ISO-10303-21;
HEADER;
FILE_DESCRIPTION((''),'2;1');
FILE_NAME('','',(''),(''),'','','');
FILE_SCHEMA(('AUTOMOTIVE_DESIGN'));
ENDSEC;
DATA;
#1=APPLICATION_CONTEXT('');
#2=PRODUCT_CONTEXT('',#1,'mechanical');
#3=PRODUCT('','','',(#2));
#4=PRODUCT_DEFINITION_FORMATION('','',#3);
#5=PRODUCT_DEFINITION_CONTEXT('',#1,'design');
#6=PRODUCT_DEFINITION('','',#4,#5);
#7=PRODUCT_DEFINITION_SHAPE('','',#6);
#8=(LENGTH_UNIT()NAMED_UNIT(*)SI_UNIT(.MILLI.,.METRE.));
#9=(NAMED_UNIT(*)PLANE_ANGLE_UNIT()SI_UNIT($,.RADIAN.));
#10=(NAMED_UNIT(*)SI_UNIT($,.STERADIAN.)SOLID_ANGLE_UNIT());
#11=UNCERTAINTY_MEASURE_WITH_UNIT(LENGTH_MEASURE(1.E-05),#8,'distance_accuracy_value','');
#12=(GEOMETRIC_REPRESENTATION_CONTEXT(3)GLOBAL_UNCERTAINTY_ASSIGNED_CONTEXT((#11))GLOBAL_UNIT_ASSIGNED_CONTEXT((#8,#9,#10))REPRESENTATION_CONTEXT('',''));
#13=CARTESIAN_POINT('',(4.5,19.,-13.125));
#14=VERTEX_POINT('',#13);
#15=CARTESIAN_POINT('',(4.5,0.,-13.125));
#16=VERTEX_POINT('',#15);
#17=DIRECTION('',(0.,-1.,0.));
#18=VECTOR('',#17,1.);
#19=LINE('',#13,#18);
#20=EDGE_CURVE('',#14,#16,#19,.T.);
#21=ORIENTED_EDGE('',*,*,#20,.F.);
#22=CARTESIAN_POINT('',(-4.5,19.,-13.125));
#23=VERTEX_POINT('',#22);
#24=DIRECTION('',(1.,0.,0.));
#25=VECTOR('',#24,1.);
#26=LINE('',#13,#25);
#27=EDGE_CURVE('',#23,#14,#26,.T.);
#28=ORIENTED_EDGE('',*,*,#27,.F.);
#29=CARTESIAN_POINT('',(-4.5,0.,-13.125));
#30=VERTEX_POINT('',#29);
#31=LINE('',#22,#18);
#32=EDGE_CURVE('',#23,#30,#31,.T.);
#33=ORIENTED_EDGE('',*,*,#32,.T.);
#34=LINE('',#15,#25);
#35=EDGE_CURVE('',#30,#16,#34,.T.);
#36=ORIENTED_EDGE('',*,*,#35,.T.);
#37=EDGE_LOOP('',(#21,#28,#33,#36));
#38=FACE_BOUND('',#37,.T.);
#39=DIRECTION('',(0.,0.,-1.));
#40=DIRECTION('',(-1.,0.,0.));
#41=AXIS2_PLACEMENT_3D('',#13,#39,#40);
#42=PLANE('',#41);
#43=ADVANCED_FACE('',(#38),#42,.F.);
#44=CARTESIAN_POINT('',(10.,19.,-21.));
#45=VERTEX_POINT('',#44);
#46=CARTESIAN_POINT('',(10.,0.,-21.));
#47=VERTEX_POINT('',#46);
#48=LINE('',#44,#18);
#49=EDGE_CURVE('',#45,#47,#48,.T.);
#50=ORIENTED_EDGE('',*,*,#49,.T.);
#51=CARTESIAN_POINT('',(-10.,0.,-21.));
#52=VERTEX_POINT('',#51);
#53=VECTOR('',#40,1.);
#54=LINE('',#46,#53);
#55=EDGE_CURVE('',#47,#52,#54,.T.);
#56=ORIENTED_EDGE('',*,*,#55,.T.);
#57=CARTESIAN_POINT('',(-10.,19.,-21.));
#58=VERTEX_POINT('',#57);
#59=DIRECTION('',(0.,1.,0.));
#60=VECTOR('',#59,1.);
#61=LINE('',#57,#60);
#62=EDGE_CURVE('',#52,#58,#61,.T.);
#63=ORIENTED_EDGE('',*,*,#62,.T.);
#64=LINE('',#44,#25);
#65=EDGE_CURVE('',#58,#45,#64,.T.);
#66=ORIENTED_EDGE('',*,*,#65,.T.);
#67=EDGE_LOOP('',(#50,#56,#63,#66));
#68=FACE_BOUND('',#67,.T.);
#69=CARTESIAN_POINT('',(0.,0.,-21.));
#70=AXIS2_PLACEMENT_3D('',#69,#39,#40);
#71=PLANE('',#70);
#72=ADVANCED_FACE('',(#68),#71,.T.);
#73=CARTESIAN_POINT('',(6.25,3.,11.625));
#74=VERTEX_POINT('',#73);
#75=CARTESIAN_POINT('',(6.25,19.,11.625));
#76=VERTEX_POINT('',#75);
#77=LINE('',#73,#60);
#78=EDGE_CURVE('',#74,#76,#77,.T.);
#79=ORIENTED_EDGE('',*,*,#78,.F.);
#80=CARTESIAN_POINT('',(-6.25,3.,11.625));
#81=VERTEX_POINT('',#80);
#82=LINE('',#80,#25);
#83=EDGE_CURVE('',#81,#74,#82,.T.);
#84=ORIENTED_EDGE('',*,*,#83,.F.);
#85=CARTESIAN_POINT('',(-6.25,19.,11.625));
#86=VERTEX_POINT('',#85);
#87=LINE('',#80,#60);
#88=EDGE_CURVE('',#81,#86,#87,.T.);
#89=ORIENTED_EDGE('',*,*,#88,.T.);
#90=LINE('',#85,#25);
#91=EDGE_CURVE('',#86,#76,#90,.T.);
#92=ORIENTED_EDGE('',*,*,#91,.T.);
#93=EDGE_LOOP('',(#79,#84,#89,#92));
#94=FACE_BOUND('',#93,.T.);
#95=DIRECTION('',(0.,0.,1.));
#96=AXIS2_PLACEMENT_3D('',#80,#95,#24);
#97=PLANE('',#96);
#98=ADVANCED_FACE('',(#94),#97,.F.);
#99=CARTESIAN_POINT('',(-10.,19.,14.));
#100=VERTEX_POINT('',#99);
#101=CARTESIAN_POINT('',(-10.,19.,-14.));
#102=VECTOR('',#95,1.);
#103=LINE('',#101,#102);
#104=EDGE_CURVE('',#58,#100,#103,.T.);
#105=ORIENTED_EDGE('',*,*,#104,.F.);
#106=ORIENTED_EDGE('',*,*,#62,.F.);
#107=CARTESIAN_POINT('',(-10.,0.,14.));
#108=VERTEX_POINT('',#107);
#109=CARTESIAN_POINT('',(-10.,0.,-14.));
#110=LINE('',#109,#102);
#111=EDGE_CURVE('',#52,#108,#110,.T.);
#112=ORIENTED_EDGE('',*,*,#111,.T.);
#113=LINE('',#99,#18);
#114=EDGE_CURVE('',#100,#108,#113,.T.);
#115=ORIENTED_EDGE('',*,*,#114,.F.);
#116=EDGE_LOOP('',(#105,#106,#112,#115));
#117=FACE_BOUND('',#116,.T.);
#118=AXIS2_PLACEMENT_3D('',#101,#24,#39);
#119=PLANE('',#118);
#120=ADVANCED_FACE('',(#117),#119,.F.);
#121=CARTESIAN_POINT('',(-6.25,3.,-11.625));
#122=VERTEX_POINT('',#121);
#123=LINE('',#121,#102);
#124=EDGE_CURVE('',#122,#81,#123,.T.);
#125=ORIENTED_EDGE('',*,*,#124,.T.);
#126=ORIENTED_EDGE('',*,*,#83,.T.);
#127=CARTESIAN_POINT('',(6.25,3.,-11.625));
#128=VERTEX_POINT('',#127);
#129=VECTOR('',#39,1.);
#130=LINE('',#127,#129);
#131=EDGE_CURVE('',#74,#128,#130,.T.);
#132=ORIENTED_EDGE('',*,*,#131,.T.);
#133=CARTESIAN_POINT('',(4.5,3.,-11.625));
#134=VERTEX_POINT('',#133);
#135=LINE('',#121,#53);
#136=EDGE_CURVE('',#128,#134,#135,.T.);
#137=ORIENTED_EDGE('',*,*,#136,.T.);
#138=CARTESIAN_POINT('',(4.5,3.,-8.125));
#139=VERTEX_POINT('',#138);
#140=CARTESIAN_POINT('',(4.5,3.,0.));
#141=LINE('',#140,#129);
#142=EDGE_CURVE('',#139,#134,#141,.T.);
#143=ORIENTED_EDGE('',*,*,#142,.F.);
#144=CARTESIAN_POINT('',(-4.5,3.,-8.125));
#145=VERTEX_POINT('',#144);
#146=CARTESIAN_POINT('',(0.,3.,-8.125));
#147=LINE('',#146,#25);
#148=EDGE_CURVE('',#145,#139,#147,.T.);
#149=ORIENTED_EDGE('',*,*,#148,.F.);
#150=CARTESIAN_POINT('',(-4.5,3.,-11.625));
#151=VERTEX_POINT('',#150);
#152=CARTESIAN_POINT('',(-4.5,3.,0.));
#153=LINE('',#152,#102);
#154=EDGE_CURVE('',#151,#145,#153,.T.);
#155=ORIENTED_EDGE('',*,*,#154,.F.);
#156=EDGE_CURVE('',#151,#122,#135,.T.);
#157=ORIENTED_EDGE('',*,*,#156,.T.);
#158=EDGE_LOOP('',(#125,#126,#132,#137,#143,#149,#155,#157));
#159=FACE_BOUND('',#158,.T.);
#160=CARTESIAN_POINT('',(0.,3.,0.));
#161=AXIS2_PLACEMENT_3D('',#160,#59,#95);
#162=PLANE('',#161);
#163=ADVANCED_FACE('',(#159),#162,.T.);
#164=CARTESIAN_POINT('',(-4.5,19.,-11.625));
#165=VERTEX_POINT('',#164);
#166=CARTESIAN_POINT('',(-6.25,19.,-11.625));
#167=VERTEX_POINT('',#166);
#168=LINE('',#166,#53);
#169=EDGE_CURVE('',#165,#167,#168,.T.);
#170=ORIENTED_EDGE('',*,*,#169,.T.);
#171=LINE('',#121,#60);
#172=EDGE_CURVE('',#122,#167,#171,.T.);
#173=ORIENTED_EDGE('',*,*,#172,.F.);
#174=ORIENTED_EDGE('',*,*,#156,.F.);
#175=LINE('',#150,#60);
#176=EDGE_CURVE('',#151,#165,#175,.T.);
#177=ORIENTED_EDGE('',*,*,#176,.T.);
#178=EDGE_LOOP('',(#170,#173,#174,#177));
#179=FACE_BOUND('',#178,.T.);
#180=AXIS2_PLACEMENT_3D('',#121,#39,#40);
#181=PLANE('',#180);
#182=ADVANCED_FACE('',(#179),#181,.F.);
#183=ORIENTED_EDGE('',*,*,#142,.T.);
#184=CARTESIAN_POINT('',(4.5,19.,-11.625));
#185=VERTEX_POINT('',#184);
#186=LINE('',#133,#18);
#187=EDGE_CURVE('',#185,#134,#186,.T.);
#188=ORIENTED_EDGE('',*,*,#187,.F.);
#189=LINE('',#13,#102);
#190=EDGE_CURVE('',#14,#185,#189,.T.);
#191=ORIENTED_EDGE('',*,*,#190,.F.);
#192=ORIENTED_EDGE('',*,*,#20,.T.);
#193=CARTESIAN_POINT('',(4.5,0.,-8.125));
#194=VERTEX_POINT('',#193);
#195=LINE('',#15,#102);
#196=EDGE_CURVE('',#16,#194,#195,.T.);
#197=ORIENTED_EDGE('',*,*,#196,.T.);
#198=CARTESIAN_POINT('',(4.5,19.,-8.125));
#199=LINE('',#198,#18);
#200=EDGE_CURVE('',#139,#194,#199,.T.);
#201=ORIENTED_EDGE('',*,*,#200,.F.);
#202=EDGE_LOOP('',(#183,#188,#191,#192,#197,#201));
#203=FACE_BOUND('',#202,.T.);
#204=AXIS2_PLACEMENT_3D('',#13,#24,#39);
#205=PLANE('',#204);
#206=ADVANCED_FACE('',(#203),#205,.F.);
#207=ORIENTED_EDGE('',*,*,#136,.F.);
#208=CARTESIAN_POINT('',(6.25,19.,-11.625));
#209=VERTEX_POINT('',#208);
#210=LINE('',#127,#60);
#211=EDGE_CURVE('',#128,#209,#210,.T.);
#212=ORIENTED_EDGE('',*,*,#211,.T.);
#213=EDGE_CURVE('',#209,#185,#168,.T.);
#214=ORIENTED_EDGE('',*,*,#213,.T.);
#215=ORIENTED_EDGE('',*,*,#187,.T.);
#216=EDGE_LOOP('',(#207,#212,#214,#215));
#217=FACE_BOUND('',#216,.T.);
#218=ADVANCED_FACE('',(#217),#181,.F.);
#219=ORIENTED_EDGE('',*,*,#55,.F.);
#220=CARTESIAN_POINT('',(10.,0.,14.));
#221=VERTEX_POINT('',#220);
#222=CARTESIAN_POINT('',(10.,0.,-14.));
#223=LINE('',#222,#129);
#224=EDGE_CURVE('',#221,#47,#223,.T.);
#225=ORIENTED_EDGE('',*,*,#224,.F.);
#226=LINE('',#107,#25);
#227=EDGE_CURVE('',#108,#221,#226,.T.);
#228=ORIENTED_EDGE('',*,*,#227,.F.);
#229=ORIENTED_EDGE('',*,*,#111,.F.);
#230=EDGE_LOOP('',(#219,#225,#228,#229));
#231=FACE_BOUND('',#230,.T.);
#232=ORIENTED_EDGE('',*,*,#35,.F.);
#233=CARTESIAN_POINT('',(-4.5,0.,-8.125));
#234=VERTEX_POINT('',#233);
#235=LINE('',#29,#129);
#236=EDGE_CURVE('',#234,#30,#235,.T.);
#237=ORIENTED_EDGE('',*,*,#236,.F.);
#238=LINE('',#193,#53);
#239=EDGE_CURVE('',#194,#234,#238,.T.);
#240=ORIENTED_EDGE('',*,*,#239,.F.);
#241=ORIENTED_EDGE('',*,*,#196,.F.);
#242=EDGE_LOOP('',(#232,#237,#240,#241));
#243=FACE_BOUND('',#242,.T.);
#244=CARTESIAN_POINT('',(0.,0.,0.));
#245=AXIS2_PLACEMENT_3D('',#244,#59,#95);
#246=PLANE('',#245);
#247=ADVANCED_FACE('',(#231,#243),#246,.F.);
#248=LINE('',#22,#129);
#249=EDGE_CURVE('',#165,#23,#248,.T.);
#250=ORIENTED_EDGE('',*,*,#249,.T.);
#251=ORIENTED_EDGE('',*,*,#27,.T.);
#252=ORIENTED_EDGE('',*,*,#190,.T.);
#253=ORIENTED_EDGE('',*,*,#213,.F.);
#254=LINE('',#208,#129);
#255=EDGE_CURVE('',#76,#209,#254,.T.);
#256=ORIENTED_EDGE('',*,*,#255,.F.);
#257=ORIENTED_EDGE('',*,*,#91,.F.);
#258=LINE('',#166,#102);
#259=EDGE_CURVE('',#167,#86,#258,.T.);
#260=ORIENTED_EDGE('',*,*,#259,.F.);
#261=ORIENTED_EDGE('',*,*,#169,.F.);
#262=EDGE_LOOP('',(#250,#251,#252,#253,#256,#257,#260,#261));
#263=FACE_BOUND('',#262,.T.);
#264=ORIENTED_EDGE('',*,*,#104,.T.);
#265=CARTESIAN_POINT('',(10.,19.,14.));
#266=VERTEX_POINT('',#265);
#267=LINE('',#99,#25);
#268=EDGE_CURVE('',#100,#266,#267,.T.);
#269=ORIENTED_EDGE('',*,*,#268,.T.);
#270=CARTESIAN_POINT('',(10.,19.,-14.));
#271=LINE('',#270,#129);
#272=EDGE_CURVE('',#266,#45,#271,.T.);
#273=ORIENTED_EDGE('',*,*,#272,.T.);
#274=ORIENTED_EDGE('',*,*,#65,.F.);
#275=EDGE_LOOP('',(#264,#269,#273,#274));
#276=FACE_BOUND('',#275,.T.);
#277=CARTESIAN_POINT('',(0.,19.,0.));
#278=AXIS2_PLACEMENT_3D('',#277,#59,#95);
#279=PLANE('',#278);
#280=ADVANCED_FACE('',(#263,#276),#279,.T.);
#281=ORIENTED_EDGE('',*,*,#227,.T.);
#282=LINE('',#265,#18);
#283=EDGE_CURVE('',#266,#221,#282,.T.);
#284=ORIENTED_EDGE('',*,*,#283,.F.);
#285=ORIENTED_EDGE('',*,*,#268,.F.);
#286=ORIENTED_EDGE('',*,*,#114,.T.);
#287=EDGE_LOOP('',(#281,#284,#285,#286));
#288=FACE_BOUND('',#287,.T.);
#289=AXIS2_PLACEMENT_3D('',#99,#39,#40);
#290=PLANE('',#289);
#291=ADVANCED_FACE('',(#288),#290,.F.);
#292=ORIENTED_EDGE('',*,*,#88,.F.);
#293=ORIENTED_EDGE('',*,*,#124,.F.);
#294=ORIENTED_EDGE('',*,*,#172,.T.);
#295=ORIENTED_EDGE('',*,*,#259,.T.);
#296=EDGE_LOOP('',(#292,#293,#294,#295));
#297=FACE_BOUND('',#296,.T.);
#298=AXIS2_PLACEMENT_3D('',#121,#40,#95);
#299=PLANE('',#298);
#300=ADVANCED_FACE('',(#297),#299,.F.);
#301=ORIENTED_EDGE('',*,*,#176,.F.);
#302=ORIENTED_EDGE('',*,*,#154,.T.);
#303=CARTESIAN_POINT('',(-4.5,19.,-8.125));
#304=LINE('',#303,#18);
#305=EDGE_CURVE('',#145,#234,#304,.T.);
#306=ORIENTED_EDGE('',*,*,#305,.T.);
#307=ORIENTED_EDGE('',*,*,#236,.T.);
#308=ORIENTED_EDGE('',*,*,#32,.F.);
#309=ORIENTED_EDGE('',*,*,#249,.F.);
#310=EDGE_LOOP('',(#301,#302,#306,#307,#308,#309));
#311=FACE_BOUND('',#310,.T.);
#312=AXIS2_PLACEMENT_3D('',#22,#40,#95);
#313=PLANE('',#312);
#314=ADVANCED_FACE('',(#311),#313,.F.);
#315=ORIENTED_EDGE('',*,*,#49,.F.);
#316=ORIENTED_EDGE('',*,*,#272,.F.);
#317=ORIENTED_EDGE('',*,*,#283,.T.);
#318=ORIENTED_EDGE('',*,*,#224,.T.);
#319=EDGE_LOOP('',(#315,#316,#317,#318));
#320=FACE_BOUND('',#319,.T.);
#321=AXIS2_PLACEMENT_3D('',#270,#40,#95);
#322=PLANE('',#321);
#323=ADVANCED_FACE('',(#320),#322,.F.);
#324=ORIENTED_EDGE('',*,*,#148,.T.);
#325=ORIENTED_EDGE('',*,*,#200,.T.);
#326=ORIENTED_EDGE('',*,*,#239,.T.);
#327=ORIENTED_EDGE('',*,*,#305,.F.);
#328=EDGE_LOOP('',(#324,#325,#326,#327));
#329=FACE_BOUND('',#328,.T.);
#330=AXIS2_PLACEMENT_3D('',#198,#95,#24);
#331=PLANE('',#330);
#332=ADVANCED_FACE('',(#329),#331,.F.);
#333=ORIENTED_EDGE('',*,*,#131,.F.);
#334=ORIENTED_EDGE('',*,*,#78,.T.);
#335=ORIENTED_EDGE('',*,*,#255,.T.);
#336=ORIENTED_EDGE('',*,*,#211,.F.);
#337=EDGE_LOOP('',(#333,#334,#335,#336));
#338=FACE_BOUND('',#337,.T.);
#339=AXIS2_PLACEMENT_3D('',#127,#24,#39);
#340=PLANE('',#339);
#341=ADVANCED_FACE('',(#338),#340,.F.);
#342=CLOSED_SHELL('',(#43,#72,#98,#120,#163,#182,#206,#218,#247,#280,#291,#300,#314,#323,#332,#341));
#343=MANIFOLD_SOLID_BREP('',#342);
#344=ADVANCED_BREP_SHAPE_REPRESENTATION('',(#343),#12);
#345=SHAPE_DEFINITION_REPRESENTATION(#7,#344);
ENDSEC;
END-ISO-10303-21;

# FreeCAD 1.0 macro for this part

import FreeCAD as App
import Part
import Sketcher
Q = App.Units.Quantity


def add_polygon(sketch, points):
    """Adds a closed chain of lines whose ends are joined by coincident constraints."""
    first, n = sketch.GeometryCount, len(points)
    for a, b in zip(points, points[1:] + points[:1]):
        sketch.addGeometry(Part.LineSegment(App.Vector(*a, 0), App.Vector(*b, 0)), False)
    for i in range(n):
        sketch.addConstraint(Sketcher.Constraint("Coincident", first + i, 2, first + (i + 1) % n, 1))

doc = App.newDocument("Part")
params = doc.addObject("Spreadsheet::Sheet", "Params")
for row, (alias, value) in enumerate([
    ("sketch1_width", "20 mm"),
    ("sketch1_height", "28 mm"),
    ("pad1_length", "19 mm"),
    ("sketch2_width", "12.5 mm"),
    ("sketch2_height", "23.25 mm"),
    ("pocket1_length", "16 mm"),
    ("sketch3_width", "20 mm"),
    ("sketch3_height", "19 mm"),
    ("pad2_length", "7 mm"),
    ("sketch4_width", "9 mm"),
    ("sketch4_height", "5 mm"),
], start=1):
    params.set(f"A{row}", alias)
    params.set(f"B{row}", "=" + value)
    params.setAlias(f"B{row}", alias)

body = doc.addObject("PartDesign::Body", "Body")

# Sketch on XZ plane
sketch1 = body.newObject("Sketcher::SketchObject", "Sketch")
sketch1.AttachmentSupport = (doc.getObject("XZ_Plane"), [""])
sketch1.MapMode = "FlatFace"
add_polygon(sketch1, [(-10, -14), (-10, 14), (10, 14), (10, -14)])  # lines 0-3
sketch1.addConstraint([
    Sketcher.Constraint("Vertical", 0),
    Sketcher.Constraint("Horizontal", 1),
    Sketcher.Constraint("Vertical", 2),
    Sketcher.Constraint("Horizontal", 3),
    Sketcher.Constraint("Symmetric", 0, 2, 2, 2, -1, 1),
    Sketcher.Constraint("DistanceX", 1, 1, 1, 2, Q("20 mm")),
    Sketcher.Constraint("DistanceY", 0, 1, 0, 2, Q("28 mm")),
])
sketch1.setExpression("Constraints[9]", "Params.sketch1_width")
sketch1.setExpression("Constraints[10]", "Params.sketch1_height")
pad1 = body.newObject("PartDesign::Pad", "Pad")
pad1.Profile = sketch1
pad1.setExpression("Length", "Params.pad1_length")
pad1.Reversed = True

# Sketch on XZ plane
sketch2 = body.newObject("Sketcher::SketchObject", "Sketch001")
sketch2.AttachmentSupport = (doc.getObject("XZ_Plane"), [""])
sketch2.MapMode = "FlatFace"
sketch2.AttachmentOffset = App.Placement(App.Vector(0, 0, -19), App.Rotation())
add_polygon(sketch2, [(-6, -12), (-6, 12), (6, 12), (6, -12)])  # lines 0-3
sketch2.addConstraint([
    Sketcher.Constraint("Vertical", 0),
    Sketcher.Constraint("Horizontal", 1),
    Sketcher.Constraint("Vertical", 2),
    Sketcher.Constraint("Horizontal", 3),
    Sketcher.Constraint("Symmetric", 0, 2, 2, 2, -1, 1),
    Sketcher.Constraint("DistanceX", 1, 1, 1, 2, Q("12.5 mm")),
    Sketcher.Constraint("DistanceY", 0, 1, 0, 2, Q("23.25 mm")),
])
sketch2.setExpression("Constraints[9]", "Params.sketch2_width")
sketch2.setExpression("Constraints[10]", "Params.sketch2_height")
pocket1 = body.newObject("PartDesign::Pocket", "Pocket")
pocket1.Profile = sketch2
pocket1.setExpression("Length", "Params.pocket1_length")
pocket1.Reversed = True

# Sketch on XY plane
sketch3 = body.newObject("Sketcher::SketchObject", "Sketch002")
sketch3.AttachmentSupport = (doc.getObject("XY_Plane"), [""])
sketch3.MapMode = "FlatFace"
sketch3.AttachmentOffset = App.Placement(App.Vector(0, 0, -14), App.Rotation())
add_polygon(sketch3, [(10, 19), (10, 0), (-10, 0), (-10, 19)])  # lines 0-3
sketch3.addConstraint([
    Sketcher.Constraint("Vertical", 0),
    Sketcher.Constraint("Horizontal", 1),
    Sketcher.Constraint("Vertical", 2),
    Sketcher.Constraint("Horizontal", 3),
    Sketcher.Constraint("Symmetric", 0, 2, 1, 2, -1, 1),
    Sketcher.Constraint("DistanceX", 1, 2, 1, 1, Q("20 mm")),
    Sketcher.Constraint("DistanceY", 0, 2, 0, 1, Q("19 mm")),
])
sketch3.setExpression("Constraints[9]", "Params.sketch3_width")
sketch3.setExpression("Constraints[10]", "Params.sketch3_height")
pad2 = body.newObject("PartDesign::Pad", "Pad001")
pad2.Profile = sketch3
pad2.setExpression("Length", "Params.pad2_length")
pad2.Reversed = True

# Sketch on XZ plane
sketch4 = body.newObject("Sketcher::SketchObject", "Sketch003")
sketch4.AttachmentSupport = (doc.getObject("XZ_Plane"), [""])
sketch4.MapMode = "FlatFace"
add_polygon(sketch4, [(-4, -8), (-4, -13), (4, -13), (4, -8)])  # lines 0-3
sketch4.addConstraint([
    Sketcher.Constraint("Vertical", 0),
    Sketcher.Constraint("Horizontal", 1),
    Sketcher.Constraint("Vertical", 2),
    Sketcher.Constraint("Horizontal", 3),
    Sketcher.Constraint("DistanceX", 1, 1, 1, 2, Q("9 mm")),
    Sketcher.Constraint("DistanceY", 0, 2, 0, 1, Q("5 mm")),
    Sketcher.Constraint("DistanceX", 0, 2, -1, 1, Q("4.5 mm")),
    Sketcher.Constraint("DistanceY", 0, 2, -1, 1, Q("13.125 mm")),
])
sketch4.setExpression("Constraints[8]", "Params.sketch4_width")
sketch4.setExpression("Constraints[9]", "Params.sketch4_height")
pocket2 = body.newObject("PartDesign::Pocket", "Pocket001")
pocket2.Profile = sketch4
pocket2.Type = "ThroughAll"

doc.recompute()
